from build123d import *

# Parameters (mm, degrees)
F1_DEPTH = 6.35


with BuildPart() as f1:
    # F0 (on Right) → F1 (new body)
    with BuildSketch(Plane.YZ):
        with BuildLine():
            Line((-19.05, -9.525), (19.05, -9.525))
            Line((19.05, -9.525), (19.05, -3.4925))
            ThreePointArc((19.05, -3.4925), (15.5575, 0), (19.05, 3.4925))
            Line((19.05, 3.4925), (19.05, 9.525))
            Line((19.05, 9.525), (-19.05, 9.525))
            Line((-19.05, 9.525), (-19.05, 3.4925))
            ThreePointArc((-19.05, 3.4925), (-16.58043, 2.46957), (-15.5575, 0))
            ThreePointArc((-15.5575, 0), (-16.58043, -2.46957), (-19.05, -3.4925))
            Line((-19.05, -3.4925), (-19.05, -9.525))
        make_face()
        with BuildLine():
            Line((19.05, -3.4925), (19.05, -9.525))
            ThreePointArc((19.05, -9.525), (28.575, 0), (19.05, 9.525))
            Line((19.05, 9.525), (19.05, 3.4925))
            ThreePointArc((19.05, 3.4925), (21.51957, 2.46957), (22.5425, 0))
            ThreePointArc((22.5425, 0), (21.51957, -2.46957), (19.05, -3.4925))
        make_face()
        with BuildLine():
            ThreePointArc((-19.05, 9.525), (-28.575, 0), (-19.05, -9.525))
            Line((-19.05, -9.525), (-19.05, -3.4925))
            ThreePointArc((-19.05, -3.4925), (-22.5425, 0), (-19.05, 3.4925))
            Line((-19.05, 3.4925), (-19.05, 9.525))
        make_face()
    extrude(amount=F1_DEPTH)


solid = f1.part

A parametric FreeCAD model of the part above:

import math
import FreeCAD as App
import Part
import Sketcher

V = App.Vector
Q = App.Units.Quantity

doc = App.newDocument("Part")
body = doc.addObject("PartDesign::Body", "Body")

# Sketch on YZ plane
sketch1 = body.newObject("Sketcher::SketchObject", "Sketch")
sketch1.AttachmentSupport = (doc.getObject("YZ_Plane"), [""])
sketch1.MapMode = "FlatFace"
sketch1.addGeometry([
    Part.LineSegment(V(-19.1, -9.5, 0), V(19.1, -9.5, 0)),  # 0
    Part.ArcOfCircle(Part.Circle(V(19.1, 0, 0), V(0, 0, 1), 9.5), math.radians(-90), math.radians(90)),  # 1
    Part.LineSegment(V(19.1, 9.5, 0), V(-19.1, 9.5, 0)),  # 2
    Part.ArcOfCircle(Part.Circle(V(-19.1, 0, 0), V(0, 0, 1), 9.5), math.radians(90), math.radians(270)),  # 3
    Part.ArcOfCircle(Part.Circle(V(-19.1, 0, 0), V(0, 0, 1), 3.5), math.radians(0), math.radians(90)),  # 4
    Part.ArcOfCircle(Part.Circle(V(-19.1, 0, 0), V(0, 0, 1), 3.5), math.radians(-90), math.radians(0)),  # 5
    Part.ArcOfCircle(Part.Circle(V(-19.1, 0, 0), V(0, 0, 1), 3.5), math.radians(90), math.radians(270)),  # 6
    Part.ArcOfCircle(Part.Circle(V(19.1, 0, 0), V(0, 0, 1), 3.5), math.radians(90), math.radians(270)),  # 7
    Part.ArcOfCircle(Part.Circle(V(19, 0, 0), V(0, 0, 1), 3.5), math.radians(0), math.radians(90)),  # 8
    Part.ArcOfCircle(Part.Circle(V(19, 0, 0), V(0, 0, 1), 3.5), math.radians(-90), math.radians(0)),  # 9
], False)
sketch1.addConstraint([
    Sketcher.Constraint("Tangent", 0, 2, 1, 1),
    Sketcher.Constraint("Tangent", 1, 2, 2, 1),
    Sketcher.Constraint("Tangent", 2, 2, 3, 1),
    Sketcher.Constraint("Tangent", 3, 2, 0, 1),
    Sketcher.Constraint("Tangent", 4, 1, 5, 2),
    Sketcher.Constraint("Tangent", 5, 1, 6, 2),
    Sketcher.Constraint("Tangent", 6, 1, 4, 2),
    Sketcher.Constraint("Tangent", 7, 1, 8, 2),
    Sketcher.Constraint("Tangent", 8, 1, 9, 2),
    Sketcher.Constraint("Tangent", 9, 1, 7, 2),
    Sketcher.Constraint("Horizontal", 0),
    Sketcher.Constraint("Horizontal", 2),
    Sketcher.Constraint("Coincident", 4, 3, 3, 3),
    Sketcher.Constraint("Coincident", 7, 3, 1, 3),
    Sketcher.Constraint("Equal", 6, 7),
    Sketcher.Constraint("Symmetric", 1, 3, 3, 3, -1, 1),
    Sketcher.Constraint("PointOnObject", 4, 1, -1),
    Sketcher.Constraint("PointOnObject", 8, 1, -1),
    Sketcher.Constraint("Vertical", 3, 2, 5, 1),
    Sketcher.Constraint("Vertical", 5, 1, 6, 1),
    Sketcher.Constraint("Vertical", 1, 2, 7, 1),
    Sketcher.Constraint("Vertical", 7, 1, 9, 1),
    Sketcher.Constraint("DistanceX", 0, 1, 0, 2, Q("1.5 in")),
    Sketcher.Constraint("Radius", 1, Q("0.375 in")),
    Sketcher.Constraint("Radius", 4, Q("0.1375001 in")),
])
pad1 = body.newObject("PartDesign::Pad", "Pad")
pad1.Profile = sketch1
pad1.Length = Q("0.25 in")

doc.recompute()
